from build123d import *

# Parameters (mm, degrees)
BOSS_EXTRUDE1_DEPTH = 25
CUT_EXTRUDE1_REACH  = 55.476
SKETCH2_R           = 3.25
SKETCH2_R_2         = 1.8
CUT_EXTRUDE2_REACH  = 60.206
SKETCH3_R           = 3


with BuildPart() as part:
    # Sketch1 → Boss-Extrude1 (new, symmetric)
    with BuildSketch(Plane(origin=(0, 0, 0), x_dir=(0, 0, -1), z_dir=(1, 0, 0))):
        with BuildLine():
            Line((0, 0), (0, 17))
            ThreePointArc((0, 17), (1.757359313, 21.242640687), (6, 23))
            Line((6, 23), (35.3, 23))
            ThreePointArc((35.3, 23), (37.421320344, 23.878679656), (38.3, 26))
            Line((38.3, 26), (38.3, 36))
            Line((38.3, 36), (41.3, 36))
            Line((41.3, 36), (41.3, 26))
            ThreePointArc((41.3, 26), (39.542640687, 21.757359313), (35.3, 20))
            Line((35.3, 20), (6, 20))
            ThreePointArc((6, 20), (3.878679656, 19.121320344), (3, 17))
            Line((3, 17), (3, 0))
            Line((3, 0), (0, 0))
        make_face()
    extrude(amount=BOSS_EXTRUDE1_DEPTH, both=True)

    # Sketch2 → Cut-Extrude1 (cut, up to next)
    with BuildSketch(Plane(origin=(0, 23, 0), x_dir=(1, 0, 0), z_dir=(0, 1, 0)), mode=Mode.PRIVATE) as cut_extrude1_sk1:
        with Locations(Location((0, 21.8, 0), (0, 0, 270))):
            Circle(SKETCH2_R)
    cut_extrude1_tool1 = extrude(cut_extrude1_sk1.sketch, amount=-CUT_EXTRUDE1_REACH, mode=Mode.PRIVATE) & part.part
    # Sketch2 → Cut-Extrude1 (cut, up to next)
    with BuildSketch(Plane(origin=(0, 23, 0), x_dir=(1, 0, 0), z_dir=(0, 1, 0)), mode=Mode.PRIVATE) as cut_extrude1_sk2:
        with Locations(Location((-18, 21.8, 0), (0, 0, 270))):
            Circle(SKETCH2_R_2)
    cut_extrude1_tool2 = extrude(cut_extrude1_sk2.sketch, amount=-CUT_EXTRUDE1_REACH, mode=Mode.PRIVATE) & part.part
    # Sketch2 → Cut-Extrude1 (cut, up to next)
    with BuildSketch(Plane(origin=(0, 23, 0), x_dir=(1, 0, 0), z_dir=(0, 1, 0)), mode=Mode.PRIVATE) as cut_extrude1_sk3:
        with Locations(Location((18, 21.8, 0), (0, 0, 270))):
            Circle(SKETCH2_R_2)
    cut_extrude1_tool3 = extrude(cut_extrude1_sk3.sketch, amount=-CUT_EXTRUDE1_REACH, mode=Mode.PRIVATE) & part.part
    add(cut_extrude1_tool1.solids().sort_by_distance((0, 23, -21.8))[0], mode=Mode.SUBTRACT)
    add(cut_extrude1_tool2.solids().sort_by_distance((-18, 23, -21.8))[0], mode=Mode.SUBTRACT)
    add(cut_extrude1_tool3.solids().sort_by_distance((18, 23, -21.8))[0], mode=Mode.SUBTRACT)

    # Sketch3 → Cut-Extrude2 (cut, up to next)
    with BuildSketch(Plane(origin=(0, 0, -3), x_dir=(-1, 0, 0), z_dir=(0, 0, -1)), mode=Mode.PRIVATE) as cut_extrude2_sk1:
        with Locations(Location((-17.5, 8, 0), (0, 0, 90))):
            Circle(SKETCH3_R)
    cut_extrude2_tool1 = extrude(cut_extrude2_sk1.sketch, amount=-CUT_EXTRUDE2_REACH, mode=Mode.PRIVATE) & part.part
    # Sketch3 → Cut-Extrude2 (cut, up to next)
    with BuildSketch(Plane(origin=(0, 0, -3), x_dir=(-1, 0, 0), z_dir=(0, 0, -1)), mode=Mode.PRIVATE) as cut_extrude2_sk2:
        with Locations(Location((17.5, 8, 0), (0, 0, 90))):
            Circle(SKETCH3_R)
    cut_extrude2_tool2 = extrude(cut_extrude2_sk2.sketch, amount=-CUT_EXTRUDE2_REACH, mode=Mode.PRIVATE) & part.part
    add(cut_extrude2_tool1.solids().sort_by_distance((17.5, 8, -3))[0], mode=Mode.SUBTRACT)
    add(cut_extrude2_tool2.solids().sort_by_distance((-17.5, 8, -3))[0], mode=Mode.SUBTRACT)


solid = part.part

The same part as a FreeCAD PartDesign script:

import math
import FreeCAD as App
import Part
import Sketcher

V = App.Vector

doc = App.newDocument("Part")
body = doc.addObject("PartDesign::Body", "Body")

# Sketch on YZ plane
sketch1 = body.newObject("Sketcher::SketchObject", "Sketch")
sketch1.AttachmentSupport = (doc.getObject("YZ_Plane"), [""])
sketch1.MapMode = "FlatFace"
sketch1.addGeometry(Part.LineSegment(V(17, 0, 0), V(0, 0, 0)), False)
sketch1.addGeometry(Part.LineSegment(V(0, 0, 0), V(0, -3, 0)), False)
sketch1.addGeometry(Part.LineSegment(V(0, -3, 0), V(17, -3, 0)), False)
sketch1.addGeometry(Part.ArcOfCircle(Part.Circle(V(17, -6, 0), V(0, 0, 1), 3), math.radians(0), math.radians(90)), False)
sketch1.addGeometry(Part.LineSegment(V(20, -6, 0), V(20, -35.3, 0)), False)
sketch1.addGeometry(Part.ArcOfCircle(Part.Circle(V(26, -35.3, 0), V(0, 0, 1), 6), math.radians(180), math.radians(270)), False)
sketch1.addGeometry(Part.LineSegment(V(26, -41.3, 0), V(36, -41.3, 0)), False)
sketch1.addGeometry(Part.LineSegment(V(36, -41.3, 0), V(36, -38.3, 0)), False)
sketch1.addGeometry(Part.LineSegment(V(36, -38.3, 0), V(26, -38.3, 0)), False)
sketch1.addGeometry(Part.ArcOfCircle(Part.Circle(V(26, -35.3, 0), V(0, 0, 1), 3), math.radians(180), math.radians(270)), False)
sketch1.addGeometry(Part.LineSegment(V(23, -35.3, 0), V(23, -6, 0)), False)
sketch1.addGeometry(Part.ArcOfCircle(Part.Circle(V(17, -6, 0), V(0, 0, 1), 6), math.radians(0), math.radians(90)), False)
sketch1.addConstraint(Sketcher.Constraint("Coincident", 0, 2, 1, 1))
sketch1.addConstraint(Sketcher.Constraint("Coincident", 1, 2, 2, 1))
sketch1.addConstraint(Sketcher.Constraint("Tangent", 2, 2, 3, 2))
sketch1.addConstraint(Sketcher.Constraint("Tangent", 3, 1, 4, 1))
sketch1.addConstraint(Sketcher.Constraint("Tangent", 4, 2, 5, 1))
sketch1.addConstraint(Sketcher.Constraint("Tangent", 5, 2, 6, 1))
sketch1.addConstraint(Sketcher.Constraint("Coincident", 6, 2, 7, 1))
sketch1.addConstraint(Sketcher.Constraint("Coincident", 7, 2, 8, 1))
sketch1.addConstraint(Sketcher.Constraint("Tangent", 8, 2, 9, 2))
sketch1.addConstraint(Sketcher.Constraint("Tangent", 9, 1, 10, 1))
sketch1.addConstraint(Sketcher.Constraint("Tangent", 10, 2, 11, 1))
sketch1.addConstraint(Sketcher.Constraint("Tangent", 11, 2, 0, 1))
sketch1.addConstraint(Sketcher.Constraint("Horizontal", 0))
sketch1.addConstraint(Sketcher.Constraint("Vertical", 1))
sketch1.addConstraint(Sketcher.Constraint("Horizontal", 2))
sketch1.addConstraint(Sketcher.Constraint("Vertical", 4))
sketch1.addConstraint(Sketcher.Constraint("Horizontal", 6))
sketch1.addConstraint(Sketcher.Constraint("Vertical", 7))
sketch1.addConstraint(Sketcher.Constraint("Horizontal", 8))
sketch1.addConstraint(Sketcher.Constraint("Vertical", 10))
sketch1.addConstraint(Sketcher.Constraint("Coincident", 0, 2, -1, 1))
sketch1.addConstraint(Sketcher.Constraint("Coincident", 9, 3, 5, 3))
sketch1.addConstraint(Sketcher.Constraint("Coincident", 11, 3, 3, 3))
sketch1.addConstraint(Sketcher.Constraint("Equal", 3, 9))
sketch1.addConstraint(Sketcher.Constraint("Radius", 3, 3.0))
sketch1.addConstraint(Sketcher.Constraint("Radius", 5, 6.0))
sketch1.addConstraint(Sketcher.Constraint("DistanceX", 0, 2, 0, 1, 17.0))
sketch1.addConstraint(Sketcher.Constraint("DistanceX", 6, 1, 6, 2, 10.0))
sketch1.addConstraint(Sketcher.Constraint("DistanceY", 4, 2, 4, 1, 29.3))
pad1 = body.newObject("PartDesign::Pad", "Pad")
pad1.Profile = sketch1
pad1.Length = 50
pad1.Midplane = True

# Sketch on XZ plane
sketch2 = body.newObject("Sketcher::SketchObject", "Sketch001")
sketch2.AttachmentSupport = (doc.getObject("XZ_Plane"), [""])
sketch2.MapMode = "FlatFace"
sketch2.AttachmentOffset = App.Placement(V(0, 0, -23), App.Rotation())
sketch2.addGeometry(Part.Circle(V(0, -21.8, 0), V(0, 0, 1), 3.2), False)
sketch2.addConstraint(Sketcher.Constraint("PointOnObject", 0, 3, -2))
sketch2.addConstraint(Sketcher.Constraint("Diameter", 0, 6.5))
sketch2.addConstraint(Sketcher.Constraint("DistanceY", 0, 3, -1, 1, 21.8))
pocket1 = body.newObject("PartDesign::Pocket", "Pocket")
pocket1.Profile = sketch2
pocket1.Type = "UpToFirst"
pocket1.Reversed = True

# Sketch on XZ plane
sketch3 = body.newObject("Sketcher::SketchObject", "Sketch002")
sketch3.AttachmentSupport = (doc.getObject("XZ_Plane"), [""])
sketch3.MapMode = "FlatFace"
sketch3.AttachmentOffset = App.Placement(V(0, 0, -23), App.Rotation())
sketch3.addGeometry(Part.Circle(V(-18, -21.8, 0), V(0, 0, 1), 1.8), False)
sketch3.addConstraint(Sketcher.Constraint("Diameter", 0, 3.6))
sketch3.addConstraint(Sketcher.Constraint("DistanceX", 0, 3, -1, 1, 18.0))
sketch3.addConstraint(Sketcher.Constraint("DistanceY", 0, 3, -1, 1, 21.8))
pocket2 = body.newObject("PartDesign::Pocket", "Pocket001")
pocket2.Profile = sketch3
pocket2.Type = "UpToFirst"
pocket2.Reversed = True

# Sketch on XZ plane
sketch4 = body.newObject("Sketcher::SketchObject", "Sketch003")
sketch4.AttachmentSupport = (doc.getObject("XZ_Plane"), [""])
sketch4.MapMode = "FlatFace"
sketch4.AttachmentOffset = App.Placement(V(0, 0, -23), App.Rotation())
sketch4.addGeometry(Part.Circle(V(18, -21.8, 0), V(0, 0, 1), 1.8), False)
sketch4.addConstraint(Sketcher.Constraint("Diameter", 0, 3.6))
sketch4.addConstraint(Sketcher.Constraint("DistanceX", -1, 1, 0, 3, 18.0))
sketch4.addConstraint(Sketcher.Constraint("DistanceY", 0, 3, -1, 1, 21.8))
pocket3 = body.newObject("PartDesign::Pocket", "Pocket002")
pocket3.Profile = sketch4
pocket3.Type = "UpToFirst"
pocket3.Reversed = True

# Sketch on XY plane
sketch5 = body.newObject("Sketcher::SketchObject", "Sketch004")
sketch5.AttachmentSupport = (doc.getObject("XY_Plane"), [""])
sketch5.MapMode = "FlatFace"
sketch5.AttachmentOffset = App.Placement(V(0, 0, -3), App.Rotation())
sketch5.addGeometry(Part.Circle(V(17.5, 8, 0), V(0, 0, 1), 3), False)
sketch5.addConstraint(Sketcher.Constraint("Diameter", 0, 6.0))
sketch5.addConstraint(Sketcher.Constraint("DistanceY", -1, 1, 0, 3, 8.0))
sketch5.addConstraint(Sketcher.Constraint("DistanceX", -1, 1, 0, 3, 17.5))
pocket4 = body.newObject("PartDesign::Pocket", "Pocket003")
pocket4.Profile = sketch5
pocket4.Type = "UpToFirst"
pocket4.Reversed = True

# Sketch on XY plane
sketch6 = body.newObject("Sketcher::SketchObject", "Sketch005")
sketch6.AttachmentSupport = (doc.getObject("XY_Plane"), [""])
sketch6.MapMode = "FlatFace"
sketch6.AttachmentOffset = App.Placement(V(0, 0, -3), App.Rotation())
sketch6.addGeometry(Part.Circle(V(-17.5, 8, 0), V(0, 0, 1), 3), False)
sketch6.addConstraint(Sketcher.Constraint("Diameter", 0, 6.0))
sketch6.addConstraint(Sketcher.Constraint("DistanceY", -1, 1, 0, 3, 8.0))
sketch6.addConstraint(Sketcher.Constraint("DistanceX", 0, 3, -1, 1, 17.5))
pocket5 = body.newObject("PartDesign::Pocket", "Pocket004")
pocket5.Profile = sketch6
pocket5.Type = "UpToFirst"
pocket5.Reversed = True

doc.recompute()
